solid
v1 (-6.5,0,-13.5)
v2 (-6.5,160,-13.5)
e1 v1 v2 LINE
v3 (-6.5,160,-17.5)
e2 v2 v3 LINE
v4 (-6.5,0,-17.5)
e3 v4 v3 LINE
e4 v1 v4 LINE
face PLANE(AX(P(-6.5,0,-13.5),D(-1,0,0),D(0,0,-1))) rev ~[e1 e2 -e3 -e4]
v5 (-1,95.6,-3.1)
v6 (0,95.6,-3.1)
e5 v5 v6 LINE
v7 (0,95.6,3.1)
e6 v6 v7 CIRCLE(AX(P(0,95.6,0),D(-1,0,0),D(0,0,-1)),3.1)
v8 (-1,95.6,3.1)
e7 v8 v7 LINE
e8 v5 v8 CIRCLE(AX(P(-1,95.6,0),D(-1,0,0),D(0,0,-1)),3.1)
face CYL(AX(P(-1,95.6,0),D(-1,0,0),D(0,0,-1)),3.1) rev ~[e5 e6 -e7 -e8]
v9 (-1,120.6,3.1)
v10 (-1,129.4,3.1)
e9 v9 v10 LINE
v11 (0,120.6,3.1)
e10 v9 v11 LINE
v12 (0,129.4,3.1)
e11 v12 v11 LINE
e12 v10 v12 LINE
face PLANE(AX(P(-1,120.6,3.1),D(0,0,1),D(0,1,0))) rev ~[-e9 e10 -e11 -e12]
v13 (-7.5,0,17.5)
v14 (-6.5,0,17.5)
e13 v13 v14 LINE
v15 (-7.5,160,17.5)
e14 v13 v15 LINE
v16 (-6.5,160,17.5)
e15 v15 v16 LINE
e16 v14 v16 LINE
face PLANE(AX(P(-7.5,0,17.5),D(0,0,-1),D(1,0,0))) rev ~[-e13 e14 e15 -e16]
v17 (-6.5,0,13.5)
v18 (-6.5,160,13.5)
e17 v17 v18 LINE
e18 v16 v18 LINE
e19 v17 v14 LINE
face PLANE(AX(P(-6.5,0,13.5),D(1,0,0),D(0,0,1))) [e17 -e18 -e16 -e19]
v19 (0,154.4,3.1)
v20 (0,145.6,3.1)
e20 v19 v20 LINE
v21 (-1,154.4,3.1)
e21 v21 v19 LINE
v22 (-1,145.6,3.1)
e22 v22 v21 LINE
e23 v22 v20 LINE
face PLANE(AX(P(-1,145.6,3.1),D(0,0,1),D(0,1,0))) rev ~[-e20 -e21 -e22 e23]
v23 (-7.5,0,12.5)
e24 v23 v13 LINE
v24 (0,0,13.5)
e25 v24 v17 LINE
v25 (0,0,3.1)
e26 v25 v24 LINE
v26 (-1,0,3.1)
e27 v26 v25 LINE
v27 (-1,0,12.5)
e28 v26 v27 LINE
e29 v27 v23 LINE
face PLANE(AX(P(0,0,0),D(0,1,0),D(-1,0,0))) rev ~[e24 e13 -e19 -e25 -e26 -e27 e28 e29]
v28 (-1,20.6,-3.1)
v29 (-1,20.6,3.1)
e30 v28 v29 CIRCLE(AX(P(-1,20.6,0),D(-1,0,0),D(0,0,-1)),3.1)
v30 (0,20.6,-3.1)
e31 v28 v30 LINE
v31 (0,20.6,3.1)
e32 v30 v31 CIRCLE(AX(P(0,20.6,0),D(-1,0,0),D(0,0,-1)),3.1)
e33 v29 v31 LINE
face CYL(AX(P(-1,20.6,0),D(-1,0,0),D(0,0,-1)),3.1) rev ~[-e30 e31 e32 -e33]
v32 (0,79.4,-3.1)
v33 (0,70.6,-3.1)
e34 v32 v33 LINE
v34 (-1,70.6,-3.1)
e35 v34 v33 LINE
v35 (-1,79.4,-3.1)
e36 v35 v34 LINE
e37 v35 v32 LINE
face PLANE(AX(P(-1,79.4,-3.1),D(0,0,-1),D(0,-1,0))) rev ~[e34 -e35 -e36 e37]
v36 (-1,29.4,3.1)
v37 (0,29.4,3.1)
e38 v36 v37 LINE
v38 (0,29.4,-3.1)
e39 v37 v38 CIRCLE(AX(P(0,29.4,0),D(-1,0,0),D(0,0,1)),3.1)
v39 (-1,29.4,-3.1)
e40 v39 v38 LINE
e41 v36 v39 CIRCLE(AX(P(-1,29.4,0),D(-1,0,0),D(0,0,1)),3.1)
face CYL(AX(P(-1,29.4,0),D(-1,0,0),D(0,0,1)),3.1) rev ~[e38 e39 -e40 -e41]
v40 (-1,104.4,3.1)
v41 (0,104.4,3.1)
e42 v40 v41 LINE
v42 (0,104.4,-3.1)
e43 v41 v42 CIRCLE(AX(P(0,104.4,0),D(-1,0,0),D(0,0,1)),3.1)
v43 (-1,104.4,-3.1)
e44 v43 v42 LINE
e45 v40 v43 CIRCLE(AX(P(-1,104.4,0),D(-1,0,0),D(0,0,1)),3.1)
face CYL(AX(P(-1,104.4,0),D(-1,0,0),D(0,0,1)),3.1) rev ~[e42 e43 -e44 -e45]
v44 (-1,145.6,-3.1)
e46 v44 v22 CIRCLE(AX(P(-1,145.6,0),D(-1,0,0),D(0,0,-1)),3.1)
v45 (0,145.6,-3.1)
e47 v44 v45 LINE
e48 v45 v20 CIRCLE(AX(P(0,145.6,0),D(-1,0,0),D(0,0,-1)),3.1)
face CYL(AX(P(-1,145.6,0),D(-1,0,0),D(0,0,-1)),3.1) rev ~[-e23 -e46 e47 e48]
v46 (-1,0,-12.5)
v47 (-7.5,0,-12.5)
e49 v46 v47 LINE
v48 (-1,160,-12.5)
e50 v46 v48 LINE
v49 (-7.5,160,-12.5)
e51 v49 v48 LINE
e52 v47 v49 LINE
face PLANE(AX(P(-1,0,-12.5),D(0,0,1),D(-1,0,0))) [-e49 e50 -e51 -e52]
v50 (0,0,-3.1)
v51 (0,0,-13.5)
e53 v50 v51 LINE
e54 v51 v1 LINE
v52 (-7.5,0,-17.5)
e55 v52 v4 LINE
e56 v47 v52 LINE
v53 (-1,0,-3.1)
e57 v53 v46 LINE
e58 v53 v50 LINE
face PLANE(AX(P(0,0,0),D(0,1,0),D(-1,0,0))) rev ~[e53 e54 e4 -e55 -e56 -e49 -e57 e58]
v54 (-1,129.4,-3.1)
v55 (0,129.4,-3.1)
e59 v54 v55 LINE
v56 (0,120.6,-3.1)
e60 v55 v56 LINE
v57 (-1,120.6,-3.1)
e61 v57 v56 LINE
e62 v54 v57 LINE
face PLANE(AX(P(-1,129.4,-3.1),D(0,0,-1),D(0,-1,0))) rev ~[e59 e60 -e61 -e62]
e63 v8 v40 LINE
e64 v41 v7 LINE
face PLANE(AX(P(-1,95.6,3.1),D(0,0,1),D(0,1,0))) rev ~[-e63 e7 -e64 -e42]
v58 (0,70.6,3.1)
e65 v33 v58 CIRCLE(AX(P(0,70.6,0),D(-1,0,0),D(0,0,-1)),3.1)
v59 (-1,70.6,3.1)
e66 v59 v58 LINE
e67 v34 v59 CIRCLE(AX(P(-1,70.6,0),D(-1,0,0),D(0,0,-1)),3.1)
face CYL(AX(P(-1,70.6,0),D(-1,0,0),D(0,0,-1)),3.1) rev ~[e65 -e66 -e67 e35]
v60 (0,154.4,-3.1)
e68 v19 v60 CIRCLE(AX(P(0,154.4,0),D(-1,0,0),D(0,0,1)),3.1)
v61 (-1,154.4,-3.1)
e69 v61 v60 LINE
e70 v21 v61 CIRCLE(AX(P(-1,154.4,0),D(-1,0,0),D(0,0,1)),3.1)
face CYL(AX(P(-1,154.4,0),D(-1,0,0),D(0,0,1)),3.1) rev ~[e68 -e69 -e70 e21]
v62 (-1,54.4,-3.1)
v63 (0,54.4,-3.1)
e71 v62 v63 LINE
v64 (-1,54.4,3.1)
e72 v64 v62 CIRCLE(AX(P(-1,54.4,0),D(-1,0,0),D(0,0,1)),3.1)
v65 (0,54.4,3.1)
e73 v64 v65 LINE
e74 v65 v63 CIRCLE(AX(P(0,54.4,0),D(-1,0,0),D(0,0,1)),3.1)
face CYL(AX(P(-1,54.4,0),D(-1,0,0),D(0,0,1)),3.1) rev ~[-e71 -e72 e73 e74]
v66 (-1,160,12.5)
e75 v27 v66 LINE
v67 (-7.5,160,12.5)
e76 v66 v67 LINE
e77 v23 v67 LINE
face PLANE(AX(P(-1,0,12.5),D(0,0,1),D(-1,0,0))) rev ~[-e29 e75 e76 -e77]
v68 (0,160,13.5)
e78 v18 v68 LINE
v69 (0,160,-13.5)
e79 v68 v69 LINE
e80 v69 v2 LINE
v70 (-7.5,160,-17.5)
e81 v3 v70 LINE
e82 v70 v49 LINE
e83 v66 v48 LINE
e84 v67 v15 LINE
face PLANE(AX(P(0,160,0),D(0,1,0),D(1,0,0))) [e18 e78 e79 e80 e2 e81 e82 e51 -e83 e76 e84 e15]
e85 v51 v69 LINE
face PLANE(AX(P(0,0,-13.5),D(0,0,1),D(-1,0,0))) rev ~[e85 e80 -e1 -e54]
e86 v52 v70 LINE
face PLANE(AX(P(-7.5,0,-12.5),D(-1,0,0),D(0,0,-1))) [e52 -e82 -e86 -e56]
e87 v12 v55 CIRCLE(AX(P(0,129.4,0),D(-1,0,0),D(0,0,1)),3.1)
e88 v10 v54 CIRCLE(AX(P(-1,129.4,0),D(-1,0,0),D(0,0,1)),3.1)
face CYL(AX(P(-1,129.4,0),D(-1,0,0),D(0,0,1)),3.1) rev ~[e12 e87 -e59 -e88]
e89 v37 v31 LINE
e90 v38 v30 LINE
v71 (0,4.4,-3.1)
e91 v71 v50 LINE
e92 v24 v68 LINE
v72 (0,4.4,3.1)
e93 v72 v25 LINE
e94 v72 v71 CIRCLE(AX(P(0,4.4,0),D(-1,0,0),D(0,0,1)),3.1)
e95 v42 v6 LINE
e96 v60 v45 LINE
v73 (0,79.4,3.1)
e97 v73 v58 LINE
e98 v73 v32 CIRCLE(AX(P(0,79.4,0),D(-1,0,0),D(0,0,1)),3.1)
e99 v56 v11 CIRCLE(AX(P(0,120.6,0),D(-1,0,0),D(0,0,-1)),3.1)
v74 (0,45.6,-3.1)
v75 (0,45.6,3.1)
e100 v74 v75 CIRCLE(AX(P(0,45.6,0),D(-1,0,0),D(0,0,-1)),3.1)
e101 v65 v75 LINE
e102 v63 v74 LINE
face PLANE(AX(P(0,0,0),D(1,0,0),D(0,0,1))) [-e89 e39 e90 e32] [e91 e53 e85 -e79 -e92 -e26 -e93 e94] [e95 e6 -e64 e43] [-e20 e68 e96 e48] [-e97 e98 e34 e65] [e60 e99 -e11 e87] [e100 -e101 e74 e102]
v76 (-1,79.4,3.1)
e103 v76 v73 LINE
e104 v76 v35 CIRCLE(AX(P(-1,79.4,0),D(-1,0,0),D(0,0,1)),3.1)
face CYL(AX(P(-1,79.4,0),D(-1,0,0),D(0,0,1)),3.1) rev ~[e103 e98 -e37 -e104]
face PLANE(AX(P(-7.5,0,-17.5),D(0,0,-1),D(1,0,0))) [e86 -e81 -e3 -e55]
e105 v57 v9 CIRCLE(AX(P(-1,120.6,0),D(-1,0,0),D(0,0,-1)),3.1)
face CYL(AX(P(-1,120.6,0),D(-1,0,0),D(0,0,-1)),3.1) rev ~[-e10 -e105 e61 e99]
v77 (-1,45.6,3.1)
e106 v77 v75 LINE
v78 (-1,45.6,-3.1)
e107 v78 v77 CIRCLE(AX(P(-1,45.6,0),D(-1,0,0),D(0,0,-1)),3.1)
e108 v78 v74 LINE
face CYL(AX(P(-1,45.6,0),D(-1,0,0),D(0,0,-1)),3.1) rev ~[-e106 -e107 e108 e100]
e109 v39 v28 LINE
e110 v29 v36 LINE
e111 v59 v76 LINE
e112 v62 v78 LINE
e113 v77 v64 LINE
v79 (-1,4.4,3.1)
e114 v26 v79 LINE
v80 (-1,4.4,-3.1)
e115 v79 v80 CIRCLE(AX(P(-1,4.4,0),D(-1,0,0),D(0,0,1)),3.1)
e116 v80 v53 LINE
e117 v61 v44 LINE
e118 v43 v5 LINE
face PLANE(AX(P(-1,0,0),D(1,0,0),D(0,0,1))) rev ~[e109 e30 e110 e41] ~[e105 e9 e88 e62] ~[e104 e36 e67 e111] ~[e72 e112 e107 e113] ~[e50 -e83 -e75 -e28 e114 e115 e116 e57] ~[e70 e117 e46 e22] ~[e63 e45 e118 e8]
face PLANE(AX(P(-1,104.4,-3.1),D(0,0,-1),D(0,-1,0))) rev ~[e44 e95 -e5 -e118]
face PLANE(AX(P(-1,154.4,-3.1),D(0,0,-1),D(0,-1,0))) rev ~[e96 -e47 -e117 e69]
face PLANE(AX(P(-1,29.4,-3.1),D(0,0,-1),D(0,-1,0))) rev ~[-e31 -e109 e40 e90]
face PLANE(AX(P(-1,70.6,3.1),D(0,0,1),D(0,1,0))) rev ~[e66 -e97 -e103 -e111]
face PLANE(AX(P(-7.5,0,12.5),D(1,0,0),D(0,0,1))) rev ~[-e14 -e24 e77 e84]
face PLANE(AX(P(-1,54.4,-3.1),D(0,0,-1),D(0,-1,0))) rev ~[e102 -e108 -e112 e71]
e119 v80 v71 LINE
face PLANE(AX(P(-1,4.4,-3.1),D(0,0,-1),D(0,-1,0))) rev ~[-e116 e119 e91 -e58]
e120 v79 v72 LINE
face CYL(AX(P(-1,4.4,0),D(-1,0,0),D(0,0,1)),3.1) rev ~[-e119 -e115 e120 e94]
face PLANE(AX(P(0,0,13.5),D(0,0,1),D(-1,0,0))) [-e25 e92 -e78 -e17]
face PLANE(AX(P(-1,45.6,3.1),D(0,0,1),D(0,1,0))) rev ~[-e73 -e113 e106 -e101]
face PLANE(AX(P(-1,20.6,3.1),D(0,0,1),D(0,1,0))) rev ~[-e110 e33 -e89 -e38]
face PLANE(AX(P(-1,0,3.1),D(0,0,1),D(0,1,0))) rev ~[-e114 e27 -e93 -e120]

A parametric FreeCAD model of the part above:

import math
import FreeCAD as App
import Part
import Sketcher
from FreeCAD import Vector
Q = App.Units.Quantity

doc = App.newDocument("Part")
body = doc.addObject("PartDesign::Body", "Body")

sketch1 = body.newObject("Sketcher::SketchObject", "Sketch")
sketch1.AttachmentSupport = (doc.getObject("XZ_Plane"), [""])
sketch1.MapMode = "FlatFace"
sketch1.addGeometry(Part.LineSegment(Vector(0, 13.5, 0), Vector(0, -13.5, 0)), False)
sketch1.addGeometry(Part.LineSegment(Vector(0, -13.5, 0), Vector(-6.5, -13.5, 0)), False)
sketch1.addGeometry(Part.LineSegment(Vector(-6.5, -13.5, 0), Vector(-6.5, -17.5, 0)), False)
sketch1.addGeometry(Part.LineSegment(Vector(-6.5, -17.5, 0), Vector(-7.5, -17.5, 0)), False)
sketch1.addGeometry(Part.LineSegment(Vector(-7.5, -17.5, 0), Vector(-7.5, -12.5, 0)), False)
sketch1.addGeometry(Part.LineSegment(Vector(-7.5, -12.5, 0), Vector(-1, -12.5, 0)), False)
sketch1.addGeometry(Part.LineSegment(Vector(-1, -12.5, 0), Vector(-1, 12.5, 0)), False)
sketch1.addGeometry(Part.LineSegment(Vector(-1, 12.5, 0), Vector(-7.5, 12.5, 0)), False)
sketch1.addGeometry(Part.LineSegment(Vector(-7.5, 12.5, 0), Vector(-7.5, 17.5, 0)), False)
sketch1.addGeometry(Part.LineSegment(Vector(-7.5, 17.5, 0), Vector(-6.5, 17.5, 0)), False)
sketch1.addGeometry(Part.LineSegment(Vector(-6.5, 17.5, 0), Vector(-6.5, 13.5, 0)), False)
sketch1.addGeometry(Part.LineSegment(Vector(-6.5, 13.5, 0), Vector(0, 13.5, 0)), False)
sketch1.addConstraint(Sketcher.Constraint("Coincident", 0, 2, 1, 1))
sketch1.addConstraint(Sketcher.Constraint("Coincident", 1, 2, 2, 1))
sketch1.addConstraint(Sketcher.Constraint("Coincident", 2, 2, 3, 1))
sketch1.addConstraint(Sketcher.Constraint("Coincident", 3, 2, 4, 1))
sketch1.addConstraint(Sketcher.Constraint("Coincident", 4, 2, 5, 1))
sketch1.addConstraint(Sketcher.Constraint("Coincident", 5, 2, 6, 1))
sketch1.addConstraint(Sketcher.Constraint("Coincident", 6, 2, 7, 1))
sketch1.addConstraint(Sketcher.Constraint("Coincident", 7, 2, 8, 1))
sketch1.addConstraint(Sketcher.Constraint("Coincident", 8, 2, 9, 1))
sketch1.addConstraint(Sketcher.Constraint("Coincident", 9, 2, 10, 1))
sketch1.addConstraint(Sketcher.Constraint("Coincident", 10, 2, 11, 1))
sketch1.addConstraint(Sketcher.Constraint("Coincident", 11, 2, 0, 1))
sketch1.addConstraint(Sketcher.Constraint("Vertical", 0))
sketch1.addConstraint(Sketcher.Constraint("Horizontal", 1))
sketch1.addConstraint(Sketcher.Constraint("Vertical", 2))
sketch1.addConstraint(Sketcher.Constraint("Horizontal", 3))
sketch1.addConstraint(Sketcher.Constraint("Vertical", 4))
sketch1.addConstraint(Sketcher.Constraint("Horizontal", 5))
sketch1.addConstraint(Sketcher.Constraint("Vertical", 6))
sketch1.addConstraint(Sketcher.Constraint("Horizontal", 7))
sketch1.addConstraint(Sketcher.Constraint("Vertical", 8))
sketch1.addConstraint(Sketcher.Constraint("Horizontal", 9))
sketch1.addConstraint(Sketcher.Constraint("Vertical", 10))
sketch1.addConstraint(Sketcher.Constraint("Horizontal", 11))
sketch1.addConstraint(Sketcher.Constraint("Symmetric", 0, 2, 11, 2, -1, 1))
sketch1.addConstraint(Sketcher.Constraint("Symmetric", 4, 2, 7, 2, -1))
sketch1.addConstraint(Sketcher.Constraint("Symmetric", 2, 2, 9, 2, -1))
sketch1.addConstraint(Sketcher.Constraint("Equal", 1, 5))
sketch1.addConstraint(Sketcher.Constraint("DistanceX", 3, 2, 3, 1, Q("1 mm")))
sketch1.addConstraint(Sketcher.Constraint("DistanceY", 1, 2, 4, 2, Q("1 mm")))
sketch1.addConstraint(Sketcher.Constraint("DistanceY", 0, 2, -1, 1, Q("13.5 mm")))
sketch1.addConstraint(Sketcher.Constraint("DistanceY", 2, 2, -1, 1, Q("17.5 mm")))
sketch1.addConstraint(Sketcher.Constraint("DistanceX", 3, 2, -1, 1, Q("7.5 mm")))
pad1 = body.newObject("PartDesign::Pad", "Pad")
pad1.Profile = sketch1
pad1.Length = 200
pad1.Reversed = True

sketch2 = body.newObject("Sketcher::SketchObject", "Sketch001")
sketch2.AttachmentSupport = (doc.getObject("YZ_Plane"), [""])
sketch2.MapMode = "FlatFace"
sketch2.AttachmentOffset = App.Placement(Vector(0, 0, -1), App.Rotation())
sketch2.addGeometry(Part.LineSegment(Vector(4.4, -3.1, 0), Vector(0, -3.1, 0)), False)
sketch2.addGeometry(Part.LineSegment(Vector(0, -3.1, 0), Vector(0, 3.1, 0)), False)
sketch2.addGeometry(Part.LineSegment(Vector(0, 3.1, 0), Vector(4.4, 3.1, 0)), False)
sketch2.addGeometry(Part.ArcOfCircle(Part.Circle(Vector(4.4, 0, 0), Vector(0, 0, 1), 3.1), math.radians(-90), math.radians(90)), False)
sketch2.addGeometry(Part.LineSegment(Vector(204.4, -3.1, 0), Vector(195.6, -3.1, 0)), False)
sketch2.addGeometry(Part.ArcOfCircle(Part.Circle(Vector(195.6, 0, 0), Vector(0, 0, 1), 3.1), math.radians(90), math.radians(270)), False)
sketch2.addGeometry(Part.LineSegment(Vector(195.6, 3.1, 0), Vector(204.4, 3.1, 0)), False)
sketch2.addGeometry(Part.ArcOfCircle(Part.Circle(Vector(204.4, 0, 0), Vector(0, 0, 1), 3.1), math.radians(-90), math.radians(90)), False)
sketch2.addGeometry(Part.ArcOfCircle(Part.Circle(Vector(104.4, 0, 0), Vector(0, 0, 1), 3.1), math.radians(-90), math.radians(90)), False)
sketch2.addGeometry(Part.LineSegment(Vector(104.4, -3.1, 0), Vector(95.6, -3.1, 0)), False)
sketch2.addGeometry(Part.ArcOfCircle(Part.Circle(Vector(95.6, 0, 0), Vector(0, 0, 1), 3.1), math.radians(90), math.radians(270)), False)
sketch2.addGeometry(Part.LineSegment(Vector(95.6, 3.1, 0), Vector(104.4, 3.1, 0)), False)
sketch2.addGeometry(Part.ArcOfCircle(Part.Circle(Vector(129.4, 0, 0), Vector(0, 0, 1), 3.1), math.radians(-90), math.radians(90)), False)
sketch2.addGeometry(Part.LineSegment(Vector(129.4, -3.1, 0), Vector(120.6, -3.1, 0)), False)
sketch2.addGeometry(Part.ArcOfCircle(Part.Circle(Vector(120.6, 0, 0), Vector(0, 0, 1), 3.1), math.radians(90), math.radians(270)), False)
sketch2.addGeometry(Part.LineSegment(Vector(120.6, 3.1, 0), Vector(129.4, 3.1, 0)), False)
sketch2.addGeometry(Part.ArcOfCircle(Part.Circle(Vector(79.4, 0, 0), Vector(0, 0, 1), 3.1), math.radians(-90), math.radians(90)), False)
sketch2.addGeometry(Part.LineSegment(Vector(79.4, -3.1, 0), Vector(70.6, -3.1, 0)), False)
sketch2.addGeometry(Part.ArcOfCircle(Part.Circle(Vector(70.6, 0, 0), Vector(0, 0, 1), 3.1), math.radians(90), math.radians(270)), False)
sketch2.addGeometry(Part.LineSegment(Vector(70.6, 3.1, 0), Vector(79.4, 3.1, 0)), False)
sketch2.addGeometry(Part.ArcOfCircle(Part.Circle(Vector(154.4, 0, 0), Vector(0, 0, 1), 3.1), math.radians(-90), math.radians(90)), False)
sketch2.addGeometry(Part.LineSegment(Vector(154.4, -3.1, 0), Vector(145.6, -3.1, 0)), False)
sketch2.addGeometry(Part.ArcOfCircle(Part.Circle(Vector(145.6, 0, 0), Vector(0, 0, 1), 3.1), math.radians(90), math.radians(270)), False)
sketch2.addGeometry(Part.LineSegment(Vector(145.6, 3.1, 0), Vector(154.4, 3.1, 0)), False)
sketch2.addGeometry(Part.ArcOfCircle(Part.Circle(Vector(54.4, 0, 0), Vector(0, 0, 1), 3.1), math.radians(-90), math.radians(90)), False)
sketch2.addGeometry(Part.LineSegment(Vector(54.4, -3.1, 0), Vector(45.6, -3.1, 0)), False)
sketch2.addGeometry(Part.ArcOfCircle(Part.Circle(Vector(45.6, 0, 0), Vector(0, 0, 1), 3.1), math.radians(90), math.radians(270)), False)
sketch2.addGeometry(Part.LineSegment(Vector(45.6, 3.1, 0), Vector(54.4, 3.1, 0)), False)
sketch2.addGeometry(Part.ArcOfCircle(Part.Circle(Vector(179.4, 0, 0), Vector(0, 0, 1), 3.1), math.radians(-90), math.radians(90)), False)
sketch2.addGeometry(Part.LineSegment(Vector(179.4, -3.1, 0), Vector(170.6, -3.1, 0)), False)
sketch2.addGeometry(Part.ArcOfCircle(Part.Circle(Vector(170.6, 0, 0), Vector(0, 0, 1), 3.1), math.radians(90), math.radians(270)), False)
sketch2.addGeometry(Part.LineSegment(Vector(170.6, 3.1, 0), Vector(179.4, 3.1, 0)), False)
sketch2.addGeometry(Part.ArcOfCircle(Part.Circle(Vector(29.4, 0, 0), Vector(0, 0, 1), 3.1), math.radians(-90), math.radians(90)), False)
sketch2.addGeometry(Part.LineSegment(Vector(29.4, -3.1, 0), Vector(20.6, -3.1, 0)), False)
sketch2.addGeometry(Part.ArcOfCircle(Part.Circle(Vector(20.6, 0, 0), Vector(0, 0, 1), 3.1), math.radians(90), math.radians(270)), False)
sketch2.addGeometry(Part.LineSegment(Vector(20.6, 3.1, 0), Vector(29.4, 3.1, 0)), False)
sketch2.addConstraint(Sketcher.Constraint("Coincident", 0, 2, 1, 1))
sketch2.addConstraint(Sketcher.Constraint("Coincident", 1, 2, 2, 1))
sketch2.addConstraint(Sketcher.Constraint("Tangent", 2, 2, 3, 2))
sketch2.addConstraint(Sketcher.Constraint("Tangent", 3, 1, 0, 1))
sketch2.addConstraint(Sketcher.Constraint("Tangent", 4, 2, 5, 2))
sketch2.addConstraint(Sketcher.Constraint("Tangent", 5, 1, 6, 1))
sketch2.addConstraint(Sketcher.Constraint("Tangent", 6, 2, 7, 2))
sketch2.addConstraint(Sketcher.Constraint("Tangent", 7, 1, 4, 1))
sketch2.addConstraint(Sketcher.Constraint("Tangent", 8, 1, 9, 1))
sketch2.addConstraint(Sketcher.Constraint("Tangent", 9, 2, 10, 2))
sketch2.addConstraint(Sketcher.Constraint("Tangent", 10, 1, 11, 1))
sketch2.addConstraint(Sketcher.Constraint("Tangent", 11, 2, 8, 2))
sketch2.addConstraint(Sketcher.Constraint("Tangent", 12, 1, 13, 1))
sketch2.addConstraint(Sketcher.Constraint("Tangent", 13, 2, 14, 2))
sketch2.addConstraint(Sketcher.Constraint("Tangent", 14, 1, 15, 1))
sketch2.addConstraint(Sketcher.Constraint("Tangent", 15, 2, 12, 2))
sketch2.addConstraint(Sketcher.Constraint("Tangent", 16, 1, 17, 1))
sketch2.addConstraint(Sketcher.Constraint("Tangent", 17, 2, 18, 2))
sketch2.addConstraint(Sketcher.Constraint("Tangent", 18, 1, 19, 1))
sketch2.addConstraint(Sketcher.Constraint("Tangent", 19, 2, 16, 2))
sketch2.addConstraint(Sketcher.Constraint("Tangent", 20, 1, 21, 1))
sketch2.addConstraint(Sketcher.Constraint("Tangent", 21, 2, 22, 2))
sketch2.addConstraint(Sketcher.Constraint("Tangent", 22, 1, 23, 1))
sketch2.addConstraint(Sketcher.Constraint("Tangent", 23, 2, 20, 2))
sketch2.addConstraint(Sketcher.Constraint("Tangent", 24, 1, 25, 1))
sketch2.addConstraint(Sketcher.Constraint("Tangent", 25, 2, 26, 2))
sketch2.addConstraint(Sketcher.Constraint("Tangent", 26, 1, 27, 1))
sketch2.addConstraint(Sketcher.Constraint("Tangent", 27, 2, 24, 2))
sketch2.addConstraint(Sketcher.Constraint("Tangent", 28, 1, 29, 1))
sketch2.addConstraint(Sketcher.Constraint("Tangent", 29, 2, 30, 2))
sketch2.addConstraint(Sketcher.Constraint("Tangent", 30, 1, 31, 1))
sketch2.addConstraint(Sketcher.Constraint("Tangent", 31, 2, 28, 2))
sketch2.addConstraint(Sketcher.Constraint("Tangent", 32, 1, 33, 1))
sketch2.addConstraint(Sketcher.Constraint("Tangent", 33, 2, 34, 2))
sketch2.addConstraint(Sketcher.Constraint("Tangent", 34, 1, 35, 1))
sketch2.addConstraint(Sketcher.Constraint("Tangent", 35, 2, 32, 2))
sketch2.addConstraint(Sketcher.Constraint("Horizontal", 0))
sketch2.addConstraint(Sketcher.Constraint("Vertical", 1))
sketch2.addConstraint(Sketcher.Constraint("Horizontal", 2))
sketch2.addConstraint(Sketcher.Constraint("Horizontal", 4))
sketch2.addConstraint(Sketcher.Constraint("Horizontal", 6))
sketch2.addConstraint(Sketcher.Constraint("Horizontal", 9))
sketch2.addConstraint(Sketcher.Constraint("Horizontal", 11))
sketch2.addConstraint(Sketcher.Constraint("Horizontal", 13))
sketch2.addConstraint(Sketcher.Constraint("Horizontal", 15))
sketch2.addConstraint(Sketcher.Constraint("Horizontal", 17))
sketch2.addConstraint(Sketcher.Constraint("Horizontal", 19))
sketch2.addConstraint(Sketcher.Constraint("Horizontal", 21))
sketch2.addConstraint(Sketcher.Constraint("Horizontal", 23))
sketch2.addConstraint(Sketcher.Constraint("Horizontal", 25))
sketch2.addConstraint(Sketcher.Constraint("Horizontal", 27))
sketch2.addConstraint(Sketcher.Constraint("Horizontal", 29))
sketch2.addConstraint(Sketcher.Constraint("Horizontal", 31))
sketch2.addConstraint(Sketcher.Constraint("Horizontal", 33))
sketch2.addConstraint(Sketcher.Constraint("Horizontal", 35))
sketch2.addConstraint(Sketcher.Constraint("Equal", 3, 5))
sketch2.addConstraint(Sketcher.Constraint("Equal", 7, 8))
sketch2.addConstraint(Sketcher.Constraint("Equal", 10, 12))
sketch2.addConstraint(Sketcher.Constraint("Equal", 14, 16))
sketch2.addConstraint(Sketcher.Constraint("Equal", 18, 20))
sketch2.addConstraint(Sketcher.Constraint("Equal", 22, 24))
sketch2.addConstraint(Sketcher.Constraint("Equal", 26, 28))
sketch2.addConstraint(Sketcher.Constraint("Equal", 30, 32))
sketch2.addConstraint(Sketcher.Constraint("Symmetric", 0, 2, 1, 2, -1, 1))
sketch2.addConstraint(Sketcher.Constraint("PointOnObject", 5, 3, -1))
sketch2.addConstraint(Sketcher.Constraint("PointOnObject", 8, 3, -1))
sketch2.addConstraint(Sketcher.Constraint("PointOnObject", 12, 3, -1))
sketch2.addConstraint(Sketcher.Constraint("PointOnObject", 16, 3, -1))
sketch2.addConstraint(Sketcher.Constraint("PointOnObject", 20, 3, -1))
sketch2.addConstraint(Sketcher.Constraint("PointOnObject", 24, 3, -1))
sketch2.addConstraint(Sketcher.Constraint("PointOnObject", 28, 3, -1))
sketch2.addConstraint(Sketcher.Constraint("PointOnObject", 32, 3, -1))
sketch2.addConstraint(Sketcher.Constraint("Equal", 6, 9))
sketch2.addConstraint(Sketcher.Constraint("Equal", 11, 13))
sketch2.addConstraint(Sketcher.Constraint("Equal", 15, 17))
sketch2.addConstraint(Sketcher.Constraint("Equal", 19, 21))
sketch2.addConstraint(Sketcher.Constraint("Equal", 23, 25))
sketch2.addConstraint(Sketcher.Constraint("Equal", 27, 29))
sketch2.addConstraint(Sketcher.Constraint("Equal", 31, 33))
sketch2.addConstraint(Sketcher.Constraint("Radius", 3, Q("3.1 mm")))
sketch2.addConstraint(Sketcher.Constraint("DistanceX", 8, 3, 12, 3, Q("25 mm")))
sketch2.addConstraint(Sketcher.Constraint("DistanceX", 16, 3, 8, 3, Q("25 mm")))
sketch2.addConstraint(Sketcher.Constraint("DistanceX", 12, 3, 20, 3, Q("25 mm")))
sketch2.addConstraint(Sketcher.Constraint("DistanceX", 24, 3, 16, 3, Q("25 mm")))
sketch2.addConstraint(Sketcher.Constraint("DistanceX", 28, 3, 7, 3, Q("25 mm")))
sketch2.addConstraint(Sketcher.Constraint("DistanceX", 20, 3, 28, 3, Q("25 mm")))
sketch2.addConstraint(Sketcher.Constraint("DistanceX", 3, 3, 32, 3, Q("25 mm")))
sketch2.addConstraint(Sketcher.Constraint("DistanceX", 32, 3, 24, 3, Q("25 mm")))
sketch2.addConstraint(Sketcher.Constraint("DistanceX", 0, 2, 0, 1, Q("4.4 mm")))
sketch2.addConstraint(Sketcher.Constraint("DistanceX", 4, 2, 4, 1, Q("8.8 mm")))
pocket1 = body.newObject("PartDesign::Pocket", "Pocket")
pocket1.Profile = sketch2
pocket1.Length = 15
pocket1.Reversed = True

sketch3 = body.newObject("Sketcher::SketchObject", "Sketch002")
sketch3.AttachmentSupport = (doc.getObject("XZ_Plane"), [""])
sketch3.MapMode = "FlatFace"
sketch3.AttachmentOffset = App.Placement(Vector(0, 0, -200), App.Rotation())
sketch3.addGeometry(Part.LineSegment(Vector(0, -13.5, 0), Vector(-6.5, -13.5, 0)), False)
sketch3.addGeometry(Part.LineSegment(Vector(-6.5, -13.5, 0), Vector(-6.5, -17.5, 0)), False)
sketch3.addGeometry(Part.LineSegment(Vector(-6.5, -17.5, 0), Vector(-7.5, -17.5, 0)), False)
sketch3.addGeometry(Part.LineSegment(Vector(-7.5, -17.5, 0), Vector(-7.5, -12.5, 0)), False)
sketch3.addGeometry(Part.LineSegment(Vector(-7.5, -12.5, 0), Vector(-1, -12.5, 0)), False)
sketch3.addGeometry(Part.LineSegment(Vector(-1, -12.5, 0), Vector(-1, 12.5, 0)), False)
sketch3.addGeometry(Part.LineSegment(Vector(-1, 12.5, 0), Vector(-7.5, 12.5, 0)), False)
sketch3.addGeometry(Part.LineSegment(Vector(-7.5, 12.5, 0), Vector(-7.5, 17.5, 0)), False)
sketch3.addGeometry(Part.LineSegment(Vector(-7.5, 17.5, 0), Vector(-6.5, 17.5, 0)), False)
sketch3.addGeometry(Part.LineSegment(Vector(-6.5, 17.5, 0), Vector(-6.5, 13.5, 0)), False)
sketch3.addGeometry(Part.LineSegment(Vector(-6.5, 13.5, 0), Vector(0, 13.5, 0)), False)
sketch3.addGeometry(Part.LineSegment(Vector(0, 13.5, 0), Vector(0, -13.5, 0)), False)
sketch3.addConstraint(Sketcher.Constraint("Coincident", 0, 2, 1, 1))
sketch3.addConstraint(Sketcher.Constraint("Coincident", 1, 2, 2, 1))
sketch3.addConstraint(Sketcher.Constraint("Coincident", 2, 2, 3, 1))
sketch3.addConstraint(Sketcher.Constraint("Coincident", 3, 2, 4, 1))
sketch3.addConstraint(Sketcher.Constraint("Coincident", 4, 2, 5, 1))
sketch3.addConstraint(Sketcher.Constraint("Coincident", 5, 2, 6, 1))
sketch3.addConstraint(Sketcher.Constraint("Coincident", 6, 2, 7, 1))
sketch3.addConstraint(Sketcher.Constraint("Coincident", 7, 2, 8, 1))
sketch3.addConstraint(Sketcher.Constraint("Coincident", 8, 2, 9, 1))
sketch3.addConstraint(Sketcher.Constraint("Coincident", 9, 2, 10, 1))
sketch3.addConstraint(Sketcher.Constraint("Coincident", 10, 2, 11, 1))
sketch3.addConstraint(Sketcher.Constraint("Coincident", 11, 2, 0, 1))
sketch3.addConstraint(Sketcher.Constraint("Horizontal", 0))
sketch3.addConstraint(Sketcher.Constraint("Vertical", 1))
sketch3.addConstraint(Sketcher.Constraint("Horizontal", 2))
sketch3.addConstraint(Sketcher.Constraint("Vertical", 3))
sketch3.addConstraint(Sketcher.Constraint("Horizontal", 4))
sketch3.addConstraint(Sketcher.Constraint("Vertical", 5))
sketch3.addConstraint(Sketcher.Constraint("Horizontal", 6))
sketch3.addConstraint(Sketcher.Constraint("Vertical", 7))
sketch3.addConstraint(Sketcher.Constraint("Horizontal", 8))
sketch3.addConstraint(Sketcher.Constraint("Vertical", 9))
sketch3.addConstraint(Sketcher.Constraint("Horizontal", 10))
sketch3.addConstraint(Sketcher.Constraint("Vertical", 11))
sketch3.addConstraint(Sketcher.Constraint("Symmetric", 10, 2, 11, 2, -1, 1))
sketch3.addConstraint(Sketcher.Constraint("Symmetric", 3, 2, 6, 2, -1))
sketch3.addConstraint(Sketcher.Constraint("Symmetric", 1, 2, 8, 2, -1))
sketch3.addConstraint(Sketcher.Constraint("Equal", 0, 4))
sketch3.addConstraint(Sketcher.Constraint("DistanceX", 2, 2, 2, 1, Q("1 mm")))
sketch3.addConstraint(Sketcher.Constraint("DistanceY", 1, 2, 1, 1, Q("4 mm")))
sketch3.addConstraint(Sketcher.Constraint("DistanceY", 3, 1, 3, 2, Q("5 mm")))
sketch3.addConstraint(Sketcher.Constraint("DistanceY", 5, 1, 5, 2, Q("25 mm")))
sketch3.addConstraint(Sketcher.Constraint("DistanceX", 0, 2, 0, 1, Q("6.5 mm")))
pocket2 = body.newObject("PartDesign::Pocket", "Pocket001")
pocket2.Profile = sketch3
pocket2.Length = 40
pocket2.Reversed = True

doc.recompute()
